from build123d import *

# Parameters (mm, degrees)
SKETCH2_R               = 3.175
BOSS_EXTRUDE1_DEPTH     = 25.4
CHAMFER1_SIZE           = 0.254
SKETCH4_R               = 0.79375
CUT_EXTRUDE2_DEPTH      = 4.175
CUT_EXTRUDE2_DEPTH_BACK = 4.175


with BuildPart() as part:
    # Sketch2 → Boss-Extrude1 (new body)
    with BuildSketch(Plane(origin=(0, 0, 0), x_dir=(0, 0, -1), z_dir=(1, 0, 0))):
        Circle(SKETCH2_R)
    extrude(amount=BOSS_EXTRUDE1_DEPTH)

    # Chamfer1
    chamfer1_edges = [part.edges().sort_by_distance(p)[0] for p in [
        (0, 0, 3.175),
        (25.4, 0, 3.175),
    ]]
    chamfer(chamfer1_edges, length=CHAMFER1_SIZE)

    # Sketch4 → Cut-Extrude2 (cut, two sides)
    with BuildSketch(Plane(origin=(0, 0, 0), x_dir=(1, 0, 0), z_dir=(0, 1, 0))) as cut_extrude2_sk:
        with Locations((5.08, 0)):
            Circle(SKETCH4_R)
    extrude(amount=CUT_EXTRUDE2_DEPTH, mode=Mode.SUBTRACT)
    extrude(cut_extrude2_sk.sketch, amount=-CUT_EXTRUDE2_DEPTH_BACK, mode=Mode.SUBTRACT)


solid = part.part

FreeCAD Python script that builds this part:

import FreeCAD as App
import Part
import Sketcher
from FreeCAD import Vector
Q = App.Units.Quantity


def edges_at(feature, points):
    """Names of the edges that pass closest to the given points."""
    edges = feature.Shape.Edges
    near = lambda p: min(range(len(edges)), key=lambda i: edges[i].distToShape(Part.Vertex(*p))[0])
    return sorted({f"Edge{near(p) + 1}" for p in points})

doc = App.newDocument("Part")
body = doc.addObject("PartDesign::Body", "Body")

sketch1 = doc.addObject("Sketcher::SketchObject", "Sketch")
body.addObject(sketch1)
sketch1.AttachmentSupport = (doc.YZ_Plane, [""])
sketch1.MapMode = "FlatFace"
sketch1.addGeometry(Part.Circle(Vector(0, 0, 0), Vector(0, 0, 1), 3.2), False)
sketch1.addConstraint([
    Sketcher.Constraint("Coincident", 0, 3, -1, 1),
    Sketcher.Constraint("Diameter", 0, Q("0.25 in")),
])
pad1 = doc.addObject("PartDesign::Pad", "Pad")
body.addObject(pad1)
pad1.Profile = sketch1
pad1.Length = Q("1 in")
doc.recompute()

chamfer = doc.addObject("PartDesign::Chamfer", "Chamfer")
body.addObject(chamfer)
chamfer.Base = (pad1, edges_at(pad1, [(0, 0, 3.175), (25.4, 0, 3.175)]))
chamfer.Size = Q("0.01 in")

sketch2 = doc.addObject("Sketcher::SketchObject", "Sketch001")
body.addObject(sketch2)
sketch2.AttachmentSupport = (doc.XZ_Plane, [""])
sketch2.MapMode = "FlatFace"
sketch2.addGeometry(Part.Circle(Vector(5.1, 0, 0), Vector(0, 0, 1), 0.8), False)
sketch2.addConstraint([
    Sketcher.Constraint("PointOnObject", 0, 3, -1),
    Sketcher.Constraint("Diameter", 0, Q("0.0625 in")),
    Sketcher.Constraint("DistanceX", -1, 1, 0, 3, Q("0.2 in")),
])
pocket1 = doc.addObject("PartDesign::Pocket", "Pocket")
body.addObject(pocket1)
pocket1.Profile = sketch2
pocket1.Type = "ThroughAll"
pocket1.Midplane = True

doc.recompute()
